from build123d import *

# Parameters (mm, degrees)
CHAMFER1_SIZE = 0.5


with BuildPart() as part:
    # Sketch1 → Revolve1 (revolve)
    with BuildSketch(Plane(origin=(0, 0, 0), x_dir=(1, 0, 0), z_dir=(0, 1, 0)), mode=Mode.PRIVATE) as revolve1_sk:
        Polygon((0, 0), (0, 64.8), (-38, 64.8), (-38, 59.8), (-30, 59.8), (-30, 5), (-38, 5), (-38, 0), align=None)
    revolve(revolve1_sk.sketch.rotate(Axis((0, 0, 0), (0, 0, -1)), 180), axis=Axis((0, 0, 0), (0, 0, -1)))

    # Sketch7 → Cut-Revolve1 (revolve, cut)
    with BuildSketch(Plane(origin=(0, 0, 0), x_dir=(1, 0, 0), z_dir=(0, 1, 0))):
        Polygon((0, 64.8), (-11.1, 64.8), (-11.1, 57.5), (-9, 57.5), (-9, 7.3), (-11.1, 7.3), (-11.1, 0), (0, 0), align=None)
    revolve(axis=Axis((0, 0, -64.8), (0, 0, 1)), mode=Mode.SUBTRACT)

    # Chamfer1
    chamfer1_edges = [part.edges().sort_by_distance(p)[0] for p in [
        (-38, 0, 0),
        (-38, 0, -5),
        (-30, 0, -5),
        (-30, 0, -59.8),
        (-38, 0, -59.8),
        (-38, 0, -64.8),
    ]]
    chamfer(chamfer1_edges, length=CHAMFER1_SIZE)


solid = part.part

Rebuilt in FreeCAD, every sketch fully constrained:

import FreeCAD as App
import Part
import Sketcher
Q = App.Units.Quantity


def edges_at(feature, points):
    """Names of the edges that pass closest to the given points."""
    edges = feature.Shape.Edges
    near = lambda p: min(range(len(edges)), key=lambda i: edges[i].distToShape(Part.Vertex(*p))[0])
    return sorted({f"Edge{near(p) + 1}" for p in points})


def add_polygon(sketch, points):
    """Adds a closed chain of lines whose ends are joined by coincident constraints."""
    first, n = sketch.GeometryCount, len(points)
    for a, b in zip(points, points[1:] + points[:1]):
        sketch.addGeometry(Part.LineSegment(App.Vector(*a, 0), App.Vector(*b, 0)), False)
    for i in range(n):
        sketch.addConstraint(Sketcher.Constraint("Coincident", first + i, 2, first + (i + 1) % n, 1))

doc = App.newDocument("Part")
params = doc.addObject("Spreadsheet::Sheet", "Params")
for row, (alias, value) in enumerate([
    ("sketch1_width", "38 mm"),
    ("sketch1_width2", "8 mm"),
    ("sketch1_height", "5 mm"),
    ("sketch1_height2", "64.8 mm"),
    ("revolution_angle", "360 deg"),
    ("sketch2_width", "11.1 mm"),
    ("sketch2_width2", "2.1 mm"),
    ("sketch2_height", "7.3 mm"),
    ("sketch2_height2", "50.2 mm"),
    ("groove_angle", "360 deg"),
    ("chamfer_size", "0.5 mm"),
], start=1):
    params.set(f"A{row}", alias)
    params.set(f"B{row}", "=" + value)
    params.setAlias(f"B{row}", alias)

body = doc.addObject("PartDesign::Body", "Body")

sketch1 = doc.addObject("Sketcher::SketchObject", "Sketch")
body.addObject(sketch1)
sketch1.AttachmentSupport = (doc.XZ_Plane, [""])
sketch1.MapMode = "FlatFace"
add_polygon(sketch1, [(0, 0), (0, -64.8), (-38, -64.8), (-38, -59.8), (-30, -59.8), (-30, -5), (-38, -5), (-38, 0)])
sketch1.addConstraint([
    Sketcher.Constraint("Vertical", 0),
    Sketcher.Constraint("Horizontal", 1),
    Sketcher.Constraint("Vertical", 2),
    Sketcher.Constraint("Horizontal", 3),
    Sketcher.Constraint("Vertical", 4),
    Sketcher.Constraint("Horizontal", 5),
    Sketcher.Constraint("Vertical", 6),
    Sketcher.Constraint("Horizontal", 7),
    Sketcher.Constraint("Coincident", 7, 2, -1, 1),
    Sketcher.Constraint("Vertical", 2, 2, 5, 2),
    Sketcher.Constraint("Equal", 2, 6),
    Sketcher.Constraint("DistanceX", 1, 2, 1, 1, Q("38 mm")),
    Sketcher.Constraint("DistanceX", 3, 1, 3, 2, Q("8 mm")),
    Sketcher.Constraint("DistanceY", 2, 1, 2, 2, Q("5 mm")),
    Sketcher.Constraint("DistanceY", 0, 2, 0, 1, Q("64.8 mm")),
])
sketch1.setExpression("Constraints[19]", "Params.sketch1_width")
sketch1.setExpression("Constraints[20]", "Params.sketch1_width2")
sketch1.setExpression("Constraints[21]", "Params.sketch1_height")
sketch1.setExpression("Constraints[22]", "Params.sketch1_height2")
revolution = doc.addObject("PartDesign::Revolution", "Revolution")
body.addObject(revolution)
revolution.Profile = sketch1
revolution.ReferenceAxis = (sketch1, ["V_Axis"])
revolution.setExpression("Angle", "Params.revolution_angle")

sketch2 = doc.addObject("Sketcher::SketchObject", "Sketch001")
body.addObject(sketch2)
sketch2.AttachmentSupport = (doc.XZ_Plane, [""])
sketch2.MapMode = "FlatFace"
add_polygon(sketch2, [(0, -64.8), (-11.1, -64.8), (-11.1, -57.5), (-9, -57.5), (-9, -7.3), (-11.1, -7.3), (-11.1, 0), (0, 0)])
sketch2.addConstraint([
    Sketcher.Constraint("Horizontal", 0),
    Sketcher.Constraint("Vertical", 1),
    Sketcher.Constraint("Horizontal", 2),
    Sketcher.Constraint("Vertical", 3),
    Sketcher.Constraint("Horizontal", 4),
    Sketcher.Constraint("Vertical", 5),
    Sketcher.Constraint("Horizontal", 6),
    Sketcher.Constraint("Vertical", 7),
    Sketcher.Constraint("Coincident", 6, 2, -1, 1),
    Sketcher.Constraint("Vertical", 1, 2, 4, 2),
    Sketcher.Constraint("Equal", 1, 5),
    Sketcher.Constraint("DistanceX", 0, 2, 0, 1, Q("11.1 mm")),
    Sketcher.Constraint("DistanceX", 2, 1, 2, 2, Q("2.1 mm")),
    Sketcher.Constraint("DistanceY", 1, 1, 1, 2, Q("7.3 mm")),
    Sketcher.Constraint("DistanceY", 3, 1, 3, 2, Q("50.2 mm")),
])
sketch2.setExpression("Constraints[19]", "Params.sketch2_width")
sketch2.setExpression("Constraints[20]", "Params.sketch2_width2")
sketch2.setExpression("Constraints[21]", "Params.sketch2_height")
sketch2.setExpression("Constraints[22]", "Params.sketch2_height2")
groove = doc.addObject("PartDesign::Groove", "Groove")
body.addObject(groove)
groove.Profile = sketch2
groove.ReferenceAxis = (sketch2, ["V_Axis"])
groove.setExpression("Angle", "Params.groove_angle")
doc.recompute()

chamfer = doc.addObject("PartDesign::Chamfer", "Chamfer")
body.addObject(chamfer)
chamfer.Base = (groove, edges_at(groove, [
    (-38, 0, 0),
    (-38, 0, -5),
    (-30, 0, -5),
    (-30, 0, -59.8),
    (-38, 0, -59.8),
    (-38, 0, -64.8),
]))
chamfer.setExpression("Size", "Params.chamfer_size")

doc.recompute()
